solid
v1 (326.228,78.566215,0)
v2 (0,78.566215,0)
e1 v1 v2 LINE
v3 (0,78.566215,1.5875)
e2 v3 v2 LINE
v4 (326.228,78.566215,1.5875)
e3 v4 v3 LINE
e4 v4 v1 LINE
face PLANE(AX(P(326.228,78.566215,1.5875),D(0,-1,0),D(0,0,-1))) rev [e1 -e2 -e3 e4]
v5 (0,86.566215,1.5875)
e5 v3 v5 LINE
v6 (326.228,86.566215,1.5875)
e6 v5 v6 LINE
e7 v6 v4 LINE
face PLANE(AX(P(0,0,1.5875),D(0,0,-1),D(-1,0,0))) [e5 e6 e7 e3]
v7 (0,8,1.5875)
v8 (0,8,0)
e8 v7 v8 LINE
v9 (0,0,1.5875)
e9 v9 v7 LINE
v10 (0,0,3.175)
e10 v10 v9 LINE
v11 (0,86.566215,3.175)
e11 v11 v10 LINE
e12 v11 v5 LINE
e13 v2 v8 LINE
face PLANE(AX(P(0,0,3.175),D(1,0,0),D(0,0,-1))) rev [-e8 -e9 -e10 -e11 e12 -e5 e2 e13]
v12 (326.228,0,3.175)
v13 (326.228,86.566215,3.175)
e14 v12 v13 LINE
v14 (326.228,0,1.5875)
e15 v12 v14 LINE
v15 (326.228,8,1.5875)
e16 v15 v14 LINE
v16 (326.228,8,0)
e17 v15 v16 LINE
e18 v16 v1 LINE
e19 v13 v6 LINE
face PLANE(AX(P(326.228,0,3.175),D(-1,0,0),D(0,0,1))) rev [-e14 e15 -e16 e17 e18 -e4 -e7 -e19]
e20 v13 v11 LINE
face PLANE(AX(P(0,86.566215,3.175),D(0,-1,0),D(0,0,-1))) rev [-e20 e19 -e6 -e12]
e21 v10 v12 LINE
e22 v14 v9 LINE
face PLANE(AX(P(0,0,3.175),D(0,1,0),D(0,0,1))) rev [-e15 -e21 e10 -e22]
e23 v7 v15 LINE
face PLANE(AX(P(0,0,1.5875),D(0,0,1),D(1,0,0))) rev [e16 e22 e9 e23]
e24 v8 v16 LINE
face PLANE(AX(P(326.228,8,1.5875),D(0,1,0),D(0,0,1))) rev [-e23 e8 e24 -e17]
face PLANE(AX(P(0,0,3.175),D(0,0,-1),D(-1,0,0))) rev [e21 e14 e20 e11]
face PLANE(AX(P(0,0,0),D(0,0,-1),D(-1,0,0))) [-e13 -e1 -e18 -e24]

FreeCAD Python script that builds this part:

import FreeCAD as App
import Part
import Sketcher

V = App.Vector
Q = App.Units.Quantity

doc = App.newDocument("Part")
body = doc.addObject("PartDesign::Body", "Body")

sketch1 = body.newObject("Sketcher::SketchObject", "Sketch")
sketch1.AttachmentSupport = (doc.getObject("XY_Plane"), [""])
sketch1.MapMode = "FlatFace"
sketch1.addGeometry(Part.LineSegment(V(0, 87, 0), V(0, 0, 0)), False)
sketch1.addGeometry(Part.LineSegment(V(0, 0, 0), V(326, 0, 0)), False)
sketch1.addGeometry(Part.LineSegment(V(326, 0, 0), V(326, 87, 0)), False)
sketch1.addGeometry(Part.LineSegment(V(326, 87, 0), V(0, 87, 0)), False)
sketch1.addConstraint(Sketcher.Constraint("Coincident", 0, 2, 1, 1))
sketch1.addConstraint(Sketcher.Constraint("Coincident", 1, 2, 2, 1))
sketch1.addConstraint(Sketcher.Constraint("Coincident", 2, 2, 3, 1))
sketch1.addConstraint(Sketcher.Constraint("Coincident", 3, 2, 0, 1))
sketch1.addConstraint(Sketcher.Constraint("Vertical", 0))
sketch1.addConstraint(Sketcher.Constraint("Horizontal", 1))
sketch1.addConstraint(Sketcher.Constraint("Vertical", 2))
sketch1.addConstraint(Sketcher.Constraint("Horizontal", 3))
sketch1.addConstraint(Sketcher.Constraint("Coincident", 0, 2, -1, 1))
sketch1.addConstraint(Sketcher.Constraint("DistanceX", 1, 1, 1, 2, 326.228))
sketch1.addConstraint(Sketcher.Constraint("DistanceY", 0, 2, 0, 1, 86.566215))
pad1 = body.newObject("PartDesign::Pad", "Pad")
pad1.Profile = sketch1
pad1.Length = Q("0.125 in")

sketch2 = body.newObject("Sketcher::SketchObject", "Sketch001")
sketch2.AttachmentSupport = (doc.getObject("XY_Plane"), [""])
sketch2.MapMode = "FlatFace"
sketch2.addGeometry(Part.LineSegment(V(326, 8, 0), V(326, 0, 0)), False)
sketch2.addGeometry(Part.LineSegment(V(326, 0, 0), V(0, 0, 0)), False)
sketch2.addGeometry(Part.LineSegment(V(0, 0, 0), V(0, 8, 0)), False)
sketch2.addGeometry(Part.LineSegment(V(0, 8, 0), V(326, 8, 0)), False)
sketch2.addGeometry(Part.LineSegment(V(326, 87, 0), V(326, 79, 0)), False)
sketch2.addGeometry(Part.LineSegment(V(326, 79, 0), V(0, 79, 0)), False)
sketch2.addGeometry(Part.LineSegment(V(0, 79, 0), V(0, 87, 0)), False)
sketch2.addGeometry(Part.LineSegment(V(0, 87, 0), V(326, 87, 0)), False)
sketch2.addConstraint(Sketcher.Constraint("Coincident", 0, 2, 1, 1))
sketch2.addConstraint(Sketcher.Constraint("Coincident", 1, 2, 2, 1))
sketch2.addConstraint(Sketcher.Constraint("Coincident", 2, 2, 3, 1))
sketch2.addConstraint(Sketcher.Constraint("Coincident", 3, 2, 0, 1))
sketch2.addConstraint(Sketcher.Constraint("Coincident", 4, 2, 5, 1))
sketch2.addConstraint(Sketcher.Constraint("Coincident", 5, 2, 6, 1))
sketch2.addConstraint(Sketcher.Constraint("Coincident", 6, 2, 7, 1))
sketch2.addConstraint(Sketcher.Constraint("Coincident", 7, 2, 4, 1))
sketch2.addConstraint(Sketcher.Constraint("Vertical", 0))
sketch2.addConstraint(Sketcher.Constraint("Horizontal", 1))
sketch2.addConstraint(Sketcher.Constraint("Vertical", 2))
sketch2.addConstraint(Sketcher.Constraint("Horizontal", 3))
sketch2.addConstraint(Sketcher.Constraint("Vertical", 4))
sketch2.addConstraint(Sketcher.Constraint("Horizontal", 5))
sketch2.addConstraint(Sketcher.Constraint("Vertical", 6))
sketch2.addConstraint(Sketcher.Constraint("Horizontal", 7))
sketch2.addConstraint(Sketcher.Constraint("Coincident", 1, 2, -1, 1))
sketch2.addConstraint(Sketcher.Constraint("PointOnObject", 5, 2, -2))
sketch2.addConstraint(Sketcher.Constraint("Vertical", 3, 2, 4, 2))
sketch2.addConstraint(Sketcher.Constraint("Equal", 2, 4))
sketch2.addConstraint(Sketcher.Constraint("DistanceX", 1, 2, 1, 1, 326.228))
sketch2.addConstraint(Sketcher.Constraint("DistanceY", 0, 2, 0, 1, 8.0))
sketch2.addConstraint(Sketcher.Constraint("DistanceY", -1, 1, 4, 2, 78.566215))
pocket1 = body.newObject("PartDesign::Pocket", "Pocket")
pocket1.Profile = sketch2
pocket1.Length = Q("0.0625 in")
pocket1.Reversed = True

doc.recompute()
